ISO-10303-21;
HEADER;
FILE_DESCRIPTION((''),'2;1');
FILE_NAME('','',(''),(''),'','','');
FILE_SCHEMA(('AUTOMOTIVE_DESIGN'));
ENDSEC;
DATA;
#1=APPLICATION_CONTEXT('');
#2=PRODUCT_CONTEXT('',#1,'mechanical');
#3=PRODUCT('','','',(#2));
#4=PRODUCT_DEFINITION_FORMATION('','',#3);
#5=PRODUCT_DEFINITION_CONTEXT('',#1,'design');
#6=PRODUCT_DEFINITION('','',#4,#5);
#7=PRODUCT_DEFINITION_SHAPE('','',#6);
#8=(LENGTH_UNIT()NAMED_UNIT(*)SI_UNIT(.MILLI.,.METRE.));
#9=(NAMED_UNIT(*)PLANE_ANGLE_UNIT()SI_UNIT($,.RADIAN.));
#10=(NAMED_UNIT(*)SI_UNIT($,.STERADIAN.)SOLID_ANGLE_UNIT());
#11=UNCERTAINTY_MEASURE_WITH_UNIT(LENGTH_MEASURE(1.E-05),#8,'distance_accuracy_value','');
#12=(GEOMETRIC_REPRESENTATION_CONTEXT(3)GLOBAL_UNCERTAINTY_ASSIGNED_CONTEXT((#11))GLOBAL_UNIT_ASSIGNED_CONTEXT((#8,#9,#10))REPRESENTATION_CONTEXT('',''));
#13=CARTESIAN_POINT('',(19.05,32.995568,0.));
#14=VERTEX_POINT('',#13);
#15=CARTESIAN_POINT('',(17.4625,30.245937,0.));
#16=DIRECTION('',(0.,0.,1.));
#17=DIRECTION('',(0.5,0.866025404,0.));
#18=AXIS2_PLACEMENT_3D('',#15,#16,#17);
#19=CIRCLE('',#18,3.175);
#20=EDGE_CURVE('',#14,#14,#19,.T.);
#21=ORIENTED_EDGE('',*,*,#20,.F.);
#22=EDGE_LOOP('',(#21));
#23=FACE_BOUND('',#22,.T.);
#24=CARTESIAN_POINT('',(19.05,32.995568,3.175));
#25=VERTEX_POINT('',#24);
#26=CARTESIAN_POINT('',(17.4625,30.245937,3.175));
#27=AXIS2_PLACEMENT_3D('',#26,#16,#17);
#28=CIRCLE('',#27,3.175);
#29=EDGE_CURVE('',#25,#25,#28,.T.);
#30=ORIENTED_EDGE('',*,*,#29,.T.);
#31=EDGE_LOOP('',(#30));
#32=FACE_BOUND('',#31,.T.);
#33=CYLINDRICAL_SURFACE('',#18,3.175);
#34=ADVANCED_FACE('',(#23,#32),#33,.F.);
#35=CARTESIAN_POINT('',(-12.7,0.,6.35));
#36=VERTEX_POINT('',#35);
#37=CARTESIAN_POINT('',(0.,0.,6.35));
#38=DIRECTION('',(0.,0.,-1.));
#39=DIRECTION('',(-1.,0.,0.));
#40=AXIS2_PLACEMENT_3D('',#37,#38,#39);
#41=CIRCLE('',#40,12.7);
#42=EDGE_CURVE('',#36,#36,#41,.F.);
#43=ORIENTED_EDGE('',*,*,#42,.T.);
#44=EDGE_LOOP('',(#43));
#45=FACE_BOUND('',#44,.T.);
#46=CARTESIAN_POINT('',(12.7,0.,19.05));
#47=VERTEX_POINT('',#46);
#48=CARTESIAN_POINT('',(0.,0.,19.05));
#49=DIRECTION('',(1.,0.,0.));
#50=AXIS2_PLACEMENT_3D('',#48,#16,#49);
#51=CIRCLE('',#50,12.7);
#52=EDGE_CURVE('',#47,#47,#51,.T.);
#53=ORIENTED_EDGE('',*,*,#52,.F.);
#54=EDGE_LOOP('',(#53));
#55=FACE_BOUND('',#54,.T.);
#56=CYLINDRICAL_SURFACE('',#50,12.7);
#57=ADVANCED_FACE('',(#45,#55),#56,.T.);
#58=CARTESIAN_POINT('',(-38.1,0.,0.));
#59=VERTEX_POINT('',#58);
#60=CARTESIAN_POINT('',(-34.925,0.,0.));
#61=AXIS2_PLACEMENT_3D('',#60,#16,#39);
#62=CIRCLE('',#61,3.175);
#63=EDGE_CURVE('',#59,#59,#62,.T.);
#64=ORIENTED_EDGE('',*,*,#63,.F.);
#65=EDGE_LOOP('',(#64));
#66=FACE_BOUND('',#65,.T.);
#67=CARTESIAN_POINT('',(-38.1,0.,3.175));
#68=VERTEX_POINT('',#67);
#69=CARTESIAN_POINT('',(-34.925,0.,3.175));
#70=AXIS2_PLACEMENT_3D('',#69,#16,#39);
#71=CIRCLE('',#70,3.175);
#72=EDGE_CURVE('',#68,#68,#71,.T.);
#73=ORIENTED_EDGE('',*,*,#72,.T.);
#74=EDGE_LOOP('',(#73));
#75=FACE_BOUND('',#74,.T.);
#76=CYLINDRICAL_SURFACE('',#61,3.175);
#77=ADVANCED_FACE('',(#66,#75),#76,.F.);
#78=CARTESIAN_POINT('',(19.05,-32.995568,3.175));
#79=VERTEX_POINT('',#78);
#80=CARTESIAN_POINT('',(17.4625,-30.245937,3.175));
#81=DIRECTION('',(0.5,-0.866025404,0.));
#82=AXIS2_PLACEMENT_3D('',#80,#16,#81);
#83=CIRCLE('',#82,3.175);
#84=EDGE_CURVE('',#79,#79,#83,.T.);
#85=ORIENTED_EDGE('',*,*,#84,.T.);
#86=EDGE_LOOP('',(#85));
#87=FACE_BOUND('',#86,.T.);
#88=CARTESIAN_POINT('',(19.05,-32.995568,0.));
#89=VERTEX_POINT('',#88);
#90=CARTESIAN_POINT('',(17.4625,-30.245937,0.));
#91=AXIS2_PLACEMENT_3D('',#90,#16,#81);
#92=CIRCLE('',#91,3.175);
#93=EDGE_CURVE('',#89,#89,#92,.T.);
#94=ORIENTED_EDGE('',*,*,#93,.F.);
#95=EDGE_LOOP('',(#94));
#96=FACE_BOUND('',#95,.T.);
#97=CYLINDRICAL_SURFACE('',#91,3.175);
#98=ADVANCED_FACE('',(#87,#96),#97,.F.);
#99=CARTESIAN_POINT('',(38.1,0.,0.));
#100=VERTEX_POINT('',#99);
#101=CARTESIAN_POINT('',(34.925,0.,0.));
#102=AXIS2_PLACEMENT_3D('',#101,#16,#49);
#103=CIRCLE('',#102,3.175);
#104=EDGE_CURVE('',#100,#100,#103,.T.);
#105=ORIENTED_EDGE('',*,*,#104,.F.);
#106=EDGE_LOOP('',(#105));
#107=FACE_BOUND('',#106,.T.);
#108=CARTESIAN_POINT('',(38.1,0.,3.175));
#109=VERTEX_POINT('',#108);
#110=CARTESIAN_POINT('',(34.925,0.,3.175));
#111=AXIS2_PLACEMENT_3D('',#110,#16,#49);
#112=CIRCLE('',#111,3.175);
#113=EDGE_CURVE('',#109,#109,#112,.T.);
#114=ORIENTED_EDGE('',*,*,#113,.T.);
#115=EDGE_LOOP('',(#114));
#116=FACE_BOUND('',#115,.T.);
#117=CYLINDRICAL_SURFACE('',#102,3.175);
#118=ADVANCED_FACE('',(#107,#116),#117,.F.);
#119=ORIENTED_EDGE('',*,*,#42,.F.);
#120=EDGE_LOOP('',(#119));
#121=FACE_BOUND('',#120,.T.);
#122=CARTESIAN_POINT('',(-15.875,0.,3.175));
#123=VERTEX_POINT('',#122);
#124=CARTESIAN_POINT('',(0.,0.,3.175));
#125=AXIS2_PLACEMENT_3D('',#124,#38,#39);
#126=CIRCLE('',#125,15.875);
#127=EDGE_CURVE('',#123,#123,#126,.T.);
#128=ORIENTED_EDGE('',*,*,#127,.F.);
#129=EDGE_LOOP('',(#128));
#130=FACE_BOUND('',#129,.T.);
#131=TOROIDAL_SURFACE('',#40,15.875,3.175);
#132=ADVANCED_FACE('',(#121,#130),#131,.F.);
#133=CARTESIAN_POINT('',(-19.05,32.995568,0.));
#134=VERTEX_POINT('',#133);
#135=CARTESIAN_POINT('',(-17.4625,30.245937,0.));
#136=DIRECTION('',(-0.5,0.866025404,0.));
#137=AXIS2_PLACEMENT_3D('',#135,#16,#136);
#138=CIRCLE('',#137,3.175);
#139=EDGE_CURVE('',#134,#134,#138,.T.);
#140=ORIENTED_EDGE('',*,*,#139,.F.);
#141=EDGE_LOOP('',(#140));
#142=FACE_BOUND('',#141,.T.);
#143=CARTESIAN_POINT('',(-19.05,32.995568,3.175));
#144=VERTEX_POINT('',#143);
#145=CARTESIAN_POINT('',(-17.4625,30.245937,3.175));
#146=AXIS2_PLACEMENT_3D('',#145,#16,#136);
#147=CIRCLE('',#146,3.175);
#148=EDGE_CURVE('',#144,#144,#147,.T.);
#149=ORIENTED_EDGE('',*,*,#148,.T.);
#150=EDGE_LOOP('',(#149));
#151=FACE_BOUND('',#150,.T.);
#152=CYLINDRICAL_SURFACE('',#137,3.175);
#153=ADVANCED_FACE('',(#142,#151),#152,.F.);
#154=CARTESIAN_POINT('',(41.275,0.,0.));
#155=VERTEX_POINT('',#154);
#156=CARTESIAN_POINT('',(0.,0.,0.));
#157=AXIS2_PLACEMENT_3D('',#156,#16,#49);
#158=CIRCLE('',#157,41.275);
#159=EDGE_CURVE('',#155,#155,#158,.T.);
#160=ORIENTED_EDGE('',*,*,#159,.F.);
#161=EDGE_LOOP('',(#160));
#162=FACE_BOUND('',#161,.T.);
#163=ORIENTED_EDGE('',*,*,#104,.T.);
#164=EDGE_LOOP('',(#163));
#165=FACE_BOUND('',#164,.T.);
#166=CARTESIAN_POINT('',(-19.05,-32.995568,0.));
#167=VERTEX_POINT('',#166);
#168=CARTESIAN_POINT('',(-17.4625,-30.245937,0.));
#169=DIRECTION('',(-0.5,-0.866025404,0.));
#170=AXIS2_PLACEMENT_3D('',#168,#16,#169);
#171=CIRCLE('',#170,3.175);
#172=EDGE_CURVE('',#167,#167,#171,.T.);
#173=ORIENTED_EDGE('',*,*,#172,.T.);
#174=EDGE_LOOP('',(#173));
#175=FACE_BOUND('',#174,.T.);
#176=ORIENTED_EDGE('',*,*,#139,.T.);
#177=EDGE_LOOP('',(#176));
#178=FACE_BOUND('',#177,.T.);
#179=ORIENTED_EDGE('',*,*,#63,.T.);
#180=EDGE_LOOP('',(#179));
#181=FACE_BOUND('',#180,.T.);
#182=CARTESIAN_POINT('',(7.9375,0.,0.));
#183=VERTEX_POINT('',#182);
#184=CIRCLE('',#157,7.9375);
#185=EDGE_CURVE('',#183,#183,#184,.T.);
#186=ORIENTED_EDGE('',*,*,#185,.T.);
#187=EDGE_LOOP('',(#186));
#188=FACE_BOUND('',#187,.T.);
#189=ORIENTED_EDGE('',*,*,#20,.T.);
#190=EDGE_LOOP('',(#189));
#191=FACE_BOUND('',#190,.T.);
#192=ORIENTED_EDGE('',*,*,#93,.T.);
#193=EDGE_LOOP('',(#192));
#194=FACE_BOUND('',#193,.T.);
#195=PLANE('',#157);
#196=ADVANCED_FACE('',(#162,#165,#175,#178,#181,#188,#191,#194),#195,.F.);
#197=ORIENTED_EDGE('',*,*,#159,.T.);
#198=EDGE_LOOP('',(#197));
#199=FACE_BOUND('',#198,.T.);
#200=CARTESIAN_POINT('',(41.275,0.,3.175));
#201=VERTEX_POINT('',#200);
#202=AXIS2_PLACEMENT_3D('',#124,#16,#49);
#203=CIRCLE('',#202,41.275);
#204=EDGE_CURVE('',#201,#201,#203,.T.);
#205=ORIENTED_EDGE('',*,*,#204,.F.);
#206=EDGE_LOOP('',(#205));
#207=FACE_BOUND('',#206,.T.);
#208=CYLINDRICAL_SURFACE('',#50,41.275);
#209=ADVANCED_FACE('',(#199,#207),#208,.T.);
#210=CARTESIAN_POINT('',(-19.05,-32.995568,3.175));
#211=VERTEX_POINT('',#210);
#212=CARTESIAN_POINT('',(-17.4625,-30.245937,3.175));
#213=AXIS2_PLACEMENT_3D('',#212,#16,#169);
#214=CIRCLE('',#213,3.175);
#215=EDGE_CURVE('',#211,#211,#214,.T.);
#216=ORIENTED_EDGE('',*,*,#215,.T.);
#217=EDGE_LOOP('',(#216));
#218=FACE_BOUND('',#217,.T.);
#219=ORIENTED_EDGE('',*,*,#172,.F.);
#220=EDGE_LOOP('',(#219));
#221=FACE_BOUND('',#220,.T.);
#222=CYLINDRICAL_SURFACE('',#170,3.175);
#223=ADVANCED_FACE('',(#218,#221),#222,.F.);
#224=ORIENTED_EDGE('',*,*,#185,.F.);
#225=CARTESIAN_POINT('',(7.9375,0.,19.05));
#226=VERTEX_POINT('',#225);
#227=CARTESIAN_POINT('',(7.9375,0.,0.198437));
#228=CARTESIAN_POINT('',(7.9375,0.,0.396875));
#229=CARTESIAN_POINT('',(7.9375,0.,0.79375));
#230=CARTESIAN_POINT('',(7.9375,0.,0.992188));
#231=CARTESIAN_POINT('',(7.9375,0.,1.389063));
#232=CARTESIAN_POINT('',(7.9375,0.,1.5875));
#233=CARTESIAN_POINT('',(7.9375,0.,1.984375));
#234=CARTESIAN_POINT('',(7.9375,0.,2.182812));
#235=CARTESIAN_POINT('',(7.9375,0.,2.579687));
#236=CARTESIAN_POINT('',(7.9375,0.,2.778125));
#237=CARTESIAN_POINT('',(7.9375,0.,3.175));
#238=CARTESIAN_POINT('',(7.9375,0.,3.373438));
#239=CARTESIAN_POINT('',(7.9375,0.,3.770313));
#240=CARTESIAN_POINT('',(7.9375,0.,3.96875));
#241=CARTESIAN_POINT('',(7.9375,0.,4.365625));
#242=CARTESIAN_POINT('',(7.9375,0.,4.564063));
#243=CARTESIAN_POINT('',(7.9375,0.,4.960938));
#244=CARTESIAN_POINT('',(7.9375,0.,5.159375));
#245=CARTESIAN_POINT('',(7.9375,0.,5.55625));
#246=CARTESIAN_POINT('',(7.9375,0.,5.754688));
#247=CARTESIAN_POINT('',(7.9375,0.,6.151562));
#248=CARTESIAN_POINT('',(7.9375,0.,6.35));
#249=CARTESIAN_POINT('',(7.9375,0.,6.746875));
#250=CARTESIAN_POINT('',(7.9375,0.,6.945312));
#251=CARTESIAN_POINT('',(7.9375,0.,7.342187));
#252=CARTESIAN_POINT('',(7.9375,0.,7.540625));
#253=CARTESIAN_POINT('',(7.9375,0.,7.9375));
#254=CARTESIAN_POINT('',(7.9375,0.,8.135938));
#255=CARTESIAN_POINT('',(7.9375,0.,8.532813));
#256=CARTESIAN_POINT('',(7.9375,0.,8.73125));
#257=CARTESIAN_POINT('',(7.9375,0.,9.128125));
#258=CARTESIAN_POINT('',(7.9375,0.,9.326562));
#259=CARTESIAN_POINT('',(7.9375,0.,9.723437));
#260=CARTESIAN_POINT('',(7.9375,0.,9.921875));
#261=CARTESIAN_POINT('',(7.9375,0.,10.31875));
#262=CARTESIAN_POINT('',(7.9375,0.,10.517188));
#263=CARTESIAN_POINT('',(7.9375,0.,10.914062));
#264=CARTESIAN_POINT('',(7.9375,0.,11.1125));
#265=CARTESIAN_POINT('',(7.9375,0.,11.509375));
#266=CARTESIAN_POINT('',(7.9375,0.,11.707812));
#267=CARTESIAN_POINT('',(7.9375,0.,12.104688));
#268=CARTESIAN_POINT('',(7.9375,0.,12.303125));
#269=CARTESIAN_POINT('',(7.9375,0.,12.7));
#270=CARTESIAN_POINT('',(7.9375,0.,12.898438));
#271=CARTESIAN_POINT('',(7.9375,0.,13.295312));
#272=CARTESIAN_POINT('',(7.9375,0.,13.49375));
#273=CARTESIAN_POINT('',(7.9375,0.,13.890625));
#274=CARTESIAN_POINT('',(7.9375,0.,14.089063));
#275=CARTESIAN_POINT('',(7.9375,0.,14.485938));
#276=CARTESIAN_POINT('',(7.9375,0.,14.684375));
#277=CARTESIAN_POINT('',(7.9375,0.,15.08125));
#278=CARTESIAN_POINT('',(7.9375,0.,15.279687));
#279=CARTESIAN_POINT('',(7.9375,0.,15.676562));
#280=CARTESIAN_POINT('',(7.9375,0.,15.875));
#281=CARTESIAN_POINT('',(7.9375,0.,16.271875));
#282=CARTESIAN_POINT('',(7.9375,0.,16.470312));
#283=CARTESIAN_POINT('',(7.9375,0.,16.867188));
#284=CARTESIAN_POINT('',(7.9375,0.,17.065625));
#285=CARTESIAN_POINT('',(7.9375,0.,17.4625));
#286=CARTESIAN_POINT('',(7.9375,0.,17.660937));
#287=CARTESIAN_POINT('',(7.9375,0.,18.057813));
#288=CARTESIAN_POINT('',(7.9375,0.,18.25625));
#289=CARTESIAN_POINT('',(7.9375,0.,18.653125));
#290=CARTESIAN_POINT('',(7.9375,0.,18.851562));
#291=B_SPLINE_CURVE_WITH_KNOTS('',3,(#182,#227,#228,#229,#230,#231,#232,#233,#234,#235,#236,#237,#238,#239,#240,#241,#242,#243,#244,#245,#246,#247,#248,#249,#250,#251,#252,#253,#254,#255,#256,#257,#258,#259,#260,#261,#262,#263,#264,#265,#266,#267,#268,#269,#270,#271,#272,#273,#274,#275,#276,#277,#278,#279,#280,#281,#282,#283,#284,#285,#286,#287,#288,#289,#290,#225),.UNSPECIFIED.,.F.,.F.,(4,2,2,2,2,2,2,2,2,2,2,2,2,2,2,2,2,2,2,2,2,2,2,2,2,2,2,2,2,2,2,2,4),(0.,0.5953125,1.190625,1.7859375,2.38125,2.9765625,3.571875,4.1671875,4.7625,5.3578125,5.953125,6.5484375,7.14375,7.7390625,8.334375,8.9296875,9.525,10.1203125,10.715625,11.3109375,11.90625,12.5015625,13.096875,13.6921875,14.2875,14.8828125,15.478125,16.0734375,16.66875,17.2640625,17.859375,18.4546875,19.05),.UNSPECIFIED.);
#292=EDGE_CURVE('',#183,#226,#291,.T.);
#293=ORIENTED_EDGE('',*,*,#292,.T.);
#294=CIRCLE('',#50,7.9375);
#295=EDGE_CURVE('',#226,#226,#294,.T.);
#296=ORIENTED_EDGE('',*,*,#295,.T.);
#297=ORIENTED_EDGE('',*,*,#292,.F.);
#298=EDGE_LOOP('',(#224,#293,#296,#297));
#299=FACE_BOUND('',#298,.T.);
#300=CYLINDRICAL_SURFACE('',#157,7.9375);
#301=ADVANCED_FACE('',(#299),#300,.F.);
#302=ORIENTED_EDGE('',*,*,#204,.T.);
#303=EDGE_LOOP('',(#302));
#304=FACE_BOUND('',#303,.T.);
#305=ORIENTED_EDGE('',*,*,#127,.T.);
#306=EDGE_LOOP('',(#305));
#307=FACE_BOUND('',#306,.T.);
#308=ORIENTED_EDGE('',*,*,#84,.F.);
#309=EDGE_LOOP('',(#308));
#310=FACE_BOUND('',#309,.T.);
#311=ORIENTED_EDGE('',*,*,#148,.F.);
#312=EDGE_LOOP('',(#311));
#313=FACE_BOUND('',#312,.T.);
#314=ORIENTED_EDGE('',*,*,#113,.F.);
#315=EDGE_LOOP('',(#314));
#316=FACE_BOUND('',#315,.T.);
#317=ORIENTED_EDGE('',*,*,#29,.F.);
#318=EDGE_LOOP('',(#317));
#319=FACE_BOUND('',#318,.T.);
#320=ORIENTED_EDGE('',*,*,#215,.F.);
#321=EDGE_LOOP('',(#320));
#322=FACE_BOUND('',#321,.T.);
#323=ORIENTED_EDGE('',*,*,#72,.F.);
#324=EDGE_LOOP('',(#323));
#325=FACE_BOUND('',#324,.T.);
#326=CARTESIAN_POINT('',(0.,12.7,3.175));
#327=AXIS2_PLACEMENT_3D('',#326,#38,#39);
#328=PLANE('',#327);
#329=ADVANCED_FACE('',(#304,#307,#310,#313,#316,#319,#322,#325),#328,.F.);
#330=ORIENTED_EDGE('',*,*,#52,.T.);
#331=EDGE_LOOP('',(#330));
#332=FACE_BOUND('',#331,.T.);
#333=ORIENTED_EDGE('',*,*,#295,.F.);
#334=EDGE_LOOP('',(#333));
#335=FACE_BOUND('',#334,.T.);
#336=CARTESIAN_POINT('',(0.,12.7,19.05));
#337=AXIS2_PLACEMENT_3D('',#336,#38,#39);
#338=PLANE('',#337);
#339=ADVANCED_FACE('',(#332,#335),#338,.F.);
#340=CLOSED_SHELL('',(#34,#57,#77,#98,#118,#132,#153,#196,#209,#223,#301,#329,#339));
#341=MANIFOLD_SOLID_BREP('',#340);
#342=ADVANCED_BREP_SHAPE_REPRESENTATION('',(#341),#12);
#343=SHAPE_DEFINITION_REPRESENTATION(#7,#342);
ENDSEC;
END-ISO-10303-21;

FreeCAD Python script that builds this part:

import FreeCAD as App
import Part
import Sketcher
Q = App.Units.Quantity


def edges_at(feature, points):
    """Names of the edges that pass closest to the given points."""
    edges = feature.Shape.Edges
    near = lambda p: min(range(len(edges)), key=lambda i: edges[i].distToShape(Part.Vertex(*p))[0])
    return sorted({f"Edge{near(p) + 1}" for p in points})


def add_polygon(sketch, points):
    """Adds a closed chain of lines whose ends are joined by coincident constraints."""
    first, n = sketch.GeometryCount, len(points)
    for a, b in zip(points, points[1:] + points[:1]):
        sketch.addGeometry(Part.LineSegment(App.Vector(*a, 0), App.Vector(*b, 0)), False)
    for i in range(n):
        sketch.addConstraint(Sketcher.Constraint("Coincident", first + i, 2, first + (i + 1) % n, 1))

doc = App.newDocument("Part")
body = doc.addObject("PartDesign::Body", "Body")

sketch1 = body.newObject("Sketcher::SketchObject", "Sketch")
sketch1.AttachmentSupport = (doc.getObject("YZ_Plane"), [""])
sketch1.MapMode = "FlatFace"
add_polygon(sketch1, [(0, 19.1), (0, 0), (41.3, 0), (41.3, 3.2), (12.7, 3.2), (12.7, 19.1)])
sketch1.addConstraint([
    Sketcher.Constraint("Vertical", 0),
    Sketcher.Constraint("Horizontal", 1),
    Sketcher.Constraint("Vertical", 2),
    Sketcher.Constraint("Horizontal", 3),
    Sketcher.Constraint("Vertical", 4),
    Sketcher.Constraint("Horizontal", 5),
    Sketcher.Constraint("Coincident", 0, 2, -1, 1),
    Sketcher.Constraint("DistanceX", 5, 2, 5, 1, Q("0.5 in")),
    Sketcher.Constraint("DistanceY", 0, 2, 0, 1, Q("0.75 in")),
    Sketcher.Constraint("DistanceX", 1, 1, 1, 2, Q("1.625 in")),
    Sketcher.Constraint("DistanceY", 2, 1, 2, 2, Q("0.125 in")),
])
revolution = body.newObject("PartDesign::Revolution", "Revolution")
revolution.Profile = sketch1
revolution.ReferenceAxis = (sketch1, ["V_Axis"])
revolution.Angle = 360

sketch2 = body.newObject("Sketcher::SketchObject", "Sketch001")
sketch2.AttachmentSupport = (doc.getObject("XY_Plane"), [""])
sketch2.MapMode = "FlatFace"
sketch2.AttachmentOffset = App.Placement(App.Vector(0, 0, 0.75 * 25.4), App.Rotation())
sketch2.addGeometry(Part.Circle(App.Vector(0, 0, 0), App.Vector(0, 0, 1), 8), False)
sketch2.addConstraint([
    Sketcher.Constraint("Coincident", 0, 3, -1, 1),
    Sketcher.Constraint("Diameter", 0, Q("0.625 in")),
])
pocket1 = body.newObject("PartDesign::Pocket", "Pocket")
pocket1.Profile = sketch2
pocket1.Type = "ThroughAll"

sketch3 = body.newObject("Sketcher::SketchObject", "Sketch002")
sketch3.AttachmentSupport = (doc.getObject("XY_Plane"), [""])
sketch3.MapMode = "FlatFace"
sketch3.AttachmentOffset = App.Placement(App.Vector(0, 0, 0.125 * 25.4), App.Rotation())
sketch3.addGeometry(Part.Circle(App.Vector(34.9, 0, 0), App.Vector(0, 0, 1), 3.2), False)
sketch3.addConstraint([
    Sketcher.Constraint("PointOnObject", 0, 3, -1),
    Sketcher.Constraint("Diameter", 0, Q("0.25 in")),
    Sketcher.Constraint("DistanceX", -1, 1, 0, 3, Q("1.375 in")),
])
pocket2 = body.newObject("PartDesign::Pocket", "Pocket001")
pocket2.Profile = sketch3
pocket2.Type = "ThroughAll"
doc.recompute()

polarpattern = body.newObject("PartDesign::PolarPattern", "PolarPattern")
polarpattern.Originals = [pocket2]
polarpattern.Axis = (doc.getObject("Z_Axis"), [""])
polarpattern.Angle = 360
polarpattern.Occurrences = 6
body.Tip = polarpattern
doc.recompute()

fillet = body.newObject("PartDesign::Fillet", "Fillet")
fillet.Base = (polarpattern, edges_at(polarpattern, [(-12.7, 0, 3.175)]))
fillet.Radius = Q("0.125 in")

doc.recompute()
